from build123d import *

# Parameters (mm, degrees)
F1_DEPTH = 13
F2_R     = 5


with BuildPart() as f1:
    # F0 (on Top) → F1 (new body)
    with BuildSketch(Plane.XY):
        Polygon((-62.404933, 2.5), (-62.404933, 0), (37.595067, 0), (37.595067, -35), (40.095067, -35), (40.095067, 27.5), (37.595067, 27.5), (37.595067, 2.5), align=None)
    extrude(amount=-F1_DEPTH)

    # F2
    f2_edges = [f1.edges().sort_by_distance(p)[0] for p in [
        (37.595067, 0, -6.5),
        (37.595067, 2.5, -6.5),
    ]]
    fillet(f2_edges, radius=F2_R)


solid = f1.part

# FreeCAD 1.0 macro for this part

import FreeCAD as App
import Part
import Sketcher
from FreeCAD import Vector


def edges_at(feature, points):
    """Names of the edges that pass closest to the given points."""
    edges = feature.Shape.Edges
    near = lambda p: min(range(len(edges)), key=lambda i: edges[i].distToShape(Part.Vertex(*p))[0])
    return sorted({f"Edge{near(p) + 1}" for p in points})

doc = App.newDocument("Part")
body = doc.addObject("PartDesign::Body", "Body")

# Sketch on XY plane
sketch1 = doc.addObject("Sketcher::SketchObject", "Sketch")
body.addObject(sketch1)
sketch1.AttachmentSupport = (doc.XY_Plane, [""])
sketch1.MapMode = "FlatFace"
sketch1.addGeometry(Part.LineSegment(Vector(-62.4, 2.5, 0), Vector(-62.4, 0, 0)), False)
sketch1.addGeometry(Part.LineSegment(Vector(-62.4, 0, 0), Vector(37.6, 0, 0)), False)
sketch1.addGeometry(Part.LineSegment(Vector(37.6, 0, 0), Vector(37.6, -35, 0)), False)
sketch1.addGeometry(Part.LineSegment(Vector(37.6, -35, 0), Vector(40.1, -35, 0)), False)
sketch1.addGeometry(Part.LineSegment(Vector(40.1, -35, 0), Vector(40.1, 27.5, 0)), False)
sketch1.addGeometry(Part.LineSegment(Vector(40.1, 27.5, 0), Vector(37.6, 27.5, 0)), False)
sketch1.addGeometry(Part.LineSegment(Vector(37.6, 27.5, 0), Vector(37.6, 2.5, 0)), False)
sketch1.addGeometry(Part.LineSegment(Vector(37.6, 2.5, 0), Vector(-62.4, 2.5, 0)), False)
sketch1.addConstraint(Sketcher.Constraint("Coincident", 0, 2, 1, 1))
sketch1.addConstraint(Sketcher.Constraint("Coincident", 1, 2, 2, 1))
sketch1.addConstraint(Sketcher.Constraint("Coincident", 2, 2, 3, 1))
sketch1.addConstraint(Sketcher.Constraint("Coincident", 3, 2, 4, 1))
sketch1.addConstraint(Sketcher.Constraint("Coincident", 4, 2, 5, 1))
sketch1.addConstraint(Sketcher.Constraint("Coincident", 5, 2, 6, 1))
sketch1.addConstraint(Sketcher.Constraint("Coincident", 6, 2, 7, 1))
sketch1.addConstraint(Sketcher.Constraint("Coincident", 7, 2, 0, 1))
sketch1.addConstraint(Sketcher.Constraint("Vertical", 0))
sketch1.addConstraint(Sketcher.Constraint("Horizontal", 1))
sketch1.addConstraint(Sketcher.Constraint("Vertical", 2))
sketch1.addConstraint(Sketcher.Constraint("Horizontal", 3))
sketch1.addConstraint(Sketcher.Constraint("Vertical", 4))
sketch1.addConstraint(Sketcher.Constraint("Horizontal", 5))
sketch1.addConstraint(Sketcher.Constraint("Vertical", 6))
sketch1.addConstraint(Sketcher.Constraint("Horizontal", 7))
sketch1.addConstraint(Sketcher.Constraint("PointOnObject", 0, 2, -1))
sketch1.addConstraint(Sketcher.Constraint("Vertical", 2, 2, 5, 2))
sketch1.addConstraint(Sketcher.Constraint("Equal", 5, 0))
sketch1.addConstraint(Sketcher.Constraint("DistanceX", 1, 1, 1, 2, 100.0))
sketch1.addConstraint(Sketcher.Constraint("DistanceY", 2, 2, 2, 1, 35.0))
sketch1.addConstraint(Sketcher.Constraint("DistanceY", 6, 2, 6, 1, 25.0))
sketch1.addConstraint(Sketcher.Constraint("DistanceX", 3, 1, 3, 2, 2.5))
sketch1.addConstraint(Sketcher.Constraint("DistanceX", 0, 2, -1, 1, 62.404933))
pad1 = doc.addObject("PartDesign::Pad", "Pad")
body.addObject(pad1)
pad1.Profile = sketch1
pad1.Length = 13
pad1.Reversed = True
doc.recompute()

fillet = doc.addObject("PartDesign::Fillet", "Fillet")
body.addObject(fillet)
fillet.Base = (pad1, edges_at(pad1, [(37.595, 0, -6.5), (37.595, 2.5, -6.5)]))
fillet.Radius = 5

doc.recompute()
